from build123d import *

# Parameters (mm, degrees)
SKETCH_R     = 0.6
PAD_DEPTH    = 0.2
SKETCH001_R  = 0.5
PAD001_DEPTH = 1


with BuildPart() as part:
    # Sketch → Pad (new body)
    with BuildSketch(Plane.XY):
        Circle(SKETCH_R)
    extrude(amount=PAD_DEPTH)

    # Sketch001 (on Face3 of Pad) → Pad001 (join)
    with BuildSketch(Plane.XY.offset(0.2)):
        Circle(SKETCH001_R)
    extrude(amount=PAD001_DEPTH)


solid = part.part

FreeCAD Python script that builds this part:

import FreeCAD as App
import Part
import Sketcher
from FreeCAD import Vector

doc = App.newDocument("Part")
params = doc.addObject("Spreadsheet::Sheet", "Params")
for row, (alias, value) in enumerate([
    ("sketch1_diameter", "1.2 mm"),
    ("pad1_length", "0.2 mm"),
    ("sketch2_diameter", "1 mm"),
    ("pad2_length", "1 mm"),
], start=1):
    params.set(f"A{row}", alias)
    params.set(f"B{row}", "=" + value)
    params.setAlias(f"B{row}", alias)

body = doc.addObject("PartDesign::Body", "Body")

# Sketch on XY plane
sketch1 = body.newObject("Sketcher::SketchObject", "Sketch")
sketch1.AttachmentSupport = (doc.getObject("XY_Plane"), [""])
sketch1.MapMode = "FlatFace"
sketch1.addGeometry(Part.Circle(Vector(0, 0, 0), Vector(0, 0, 1), 0.6), False)
sketch1.addConstraint([
    Sketcher.Constraint("Coincident", 0, 3, -1, 1),
    Sketcher.Constraint("Diameter", 0, 1.2),
])
sketch1.setExpression("Constraints[1]", "Params.sketch1_diameter")
pad1 = body.newObject("PartDesign::Pad", "Pad")
pad1.Profile = sketch1
pad1.setExpression("Length", "Params.pad1_length")

# Sketch on XY plane
sketch2 = body.newObject("Sketcher::SketchObject", "Sketch001")
sketch2.AttachmentSupport = (doc.getObject("XY_Plane"), [""])
sketch2.MapMode = "FlatFace"
sketch2.AttachmentOffset = App.Placement(Vector(0, 0, 0.2), App.Rotation())
sketch2.addGeometry(Part.Circle(Vector(0, 0, 0), Vector(0, 0, 1), 0.5), False)
sketch2.addConstraint([
    Sketcher.Constraint("Coincident", 0, 3, -1, 1),
    Sketcher.Constraint("Diameter", 0, 1.0),
])
sketch2.setExpression("Constraints[1]", "Params.sketch2_diameter")
pad2 = body.newObject("PartDesign::Pad", "Pad001")
pad2.Profile = sketch2
pad2.setExpression("Length", "Params.pad2_length")

doc.recompute()
